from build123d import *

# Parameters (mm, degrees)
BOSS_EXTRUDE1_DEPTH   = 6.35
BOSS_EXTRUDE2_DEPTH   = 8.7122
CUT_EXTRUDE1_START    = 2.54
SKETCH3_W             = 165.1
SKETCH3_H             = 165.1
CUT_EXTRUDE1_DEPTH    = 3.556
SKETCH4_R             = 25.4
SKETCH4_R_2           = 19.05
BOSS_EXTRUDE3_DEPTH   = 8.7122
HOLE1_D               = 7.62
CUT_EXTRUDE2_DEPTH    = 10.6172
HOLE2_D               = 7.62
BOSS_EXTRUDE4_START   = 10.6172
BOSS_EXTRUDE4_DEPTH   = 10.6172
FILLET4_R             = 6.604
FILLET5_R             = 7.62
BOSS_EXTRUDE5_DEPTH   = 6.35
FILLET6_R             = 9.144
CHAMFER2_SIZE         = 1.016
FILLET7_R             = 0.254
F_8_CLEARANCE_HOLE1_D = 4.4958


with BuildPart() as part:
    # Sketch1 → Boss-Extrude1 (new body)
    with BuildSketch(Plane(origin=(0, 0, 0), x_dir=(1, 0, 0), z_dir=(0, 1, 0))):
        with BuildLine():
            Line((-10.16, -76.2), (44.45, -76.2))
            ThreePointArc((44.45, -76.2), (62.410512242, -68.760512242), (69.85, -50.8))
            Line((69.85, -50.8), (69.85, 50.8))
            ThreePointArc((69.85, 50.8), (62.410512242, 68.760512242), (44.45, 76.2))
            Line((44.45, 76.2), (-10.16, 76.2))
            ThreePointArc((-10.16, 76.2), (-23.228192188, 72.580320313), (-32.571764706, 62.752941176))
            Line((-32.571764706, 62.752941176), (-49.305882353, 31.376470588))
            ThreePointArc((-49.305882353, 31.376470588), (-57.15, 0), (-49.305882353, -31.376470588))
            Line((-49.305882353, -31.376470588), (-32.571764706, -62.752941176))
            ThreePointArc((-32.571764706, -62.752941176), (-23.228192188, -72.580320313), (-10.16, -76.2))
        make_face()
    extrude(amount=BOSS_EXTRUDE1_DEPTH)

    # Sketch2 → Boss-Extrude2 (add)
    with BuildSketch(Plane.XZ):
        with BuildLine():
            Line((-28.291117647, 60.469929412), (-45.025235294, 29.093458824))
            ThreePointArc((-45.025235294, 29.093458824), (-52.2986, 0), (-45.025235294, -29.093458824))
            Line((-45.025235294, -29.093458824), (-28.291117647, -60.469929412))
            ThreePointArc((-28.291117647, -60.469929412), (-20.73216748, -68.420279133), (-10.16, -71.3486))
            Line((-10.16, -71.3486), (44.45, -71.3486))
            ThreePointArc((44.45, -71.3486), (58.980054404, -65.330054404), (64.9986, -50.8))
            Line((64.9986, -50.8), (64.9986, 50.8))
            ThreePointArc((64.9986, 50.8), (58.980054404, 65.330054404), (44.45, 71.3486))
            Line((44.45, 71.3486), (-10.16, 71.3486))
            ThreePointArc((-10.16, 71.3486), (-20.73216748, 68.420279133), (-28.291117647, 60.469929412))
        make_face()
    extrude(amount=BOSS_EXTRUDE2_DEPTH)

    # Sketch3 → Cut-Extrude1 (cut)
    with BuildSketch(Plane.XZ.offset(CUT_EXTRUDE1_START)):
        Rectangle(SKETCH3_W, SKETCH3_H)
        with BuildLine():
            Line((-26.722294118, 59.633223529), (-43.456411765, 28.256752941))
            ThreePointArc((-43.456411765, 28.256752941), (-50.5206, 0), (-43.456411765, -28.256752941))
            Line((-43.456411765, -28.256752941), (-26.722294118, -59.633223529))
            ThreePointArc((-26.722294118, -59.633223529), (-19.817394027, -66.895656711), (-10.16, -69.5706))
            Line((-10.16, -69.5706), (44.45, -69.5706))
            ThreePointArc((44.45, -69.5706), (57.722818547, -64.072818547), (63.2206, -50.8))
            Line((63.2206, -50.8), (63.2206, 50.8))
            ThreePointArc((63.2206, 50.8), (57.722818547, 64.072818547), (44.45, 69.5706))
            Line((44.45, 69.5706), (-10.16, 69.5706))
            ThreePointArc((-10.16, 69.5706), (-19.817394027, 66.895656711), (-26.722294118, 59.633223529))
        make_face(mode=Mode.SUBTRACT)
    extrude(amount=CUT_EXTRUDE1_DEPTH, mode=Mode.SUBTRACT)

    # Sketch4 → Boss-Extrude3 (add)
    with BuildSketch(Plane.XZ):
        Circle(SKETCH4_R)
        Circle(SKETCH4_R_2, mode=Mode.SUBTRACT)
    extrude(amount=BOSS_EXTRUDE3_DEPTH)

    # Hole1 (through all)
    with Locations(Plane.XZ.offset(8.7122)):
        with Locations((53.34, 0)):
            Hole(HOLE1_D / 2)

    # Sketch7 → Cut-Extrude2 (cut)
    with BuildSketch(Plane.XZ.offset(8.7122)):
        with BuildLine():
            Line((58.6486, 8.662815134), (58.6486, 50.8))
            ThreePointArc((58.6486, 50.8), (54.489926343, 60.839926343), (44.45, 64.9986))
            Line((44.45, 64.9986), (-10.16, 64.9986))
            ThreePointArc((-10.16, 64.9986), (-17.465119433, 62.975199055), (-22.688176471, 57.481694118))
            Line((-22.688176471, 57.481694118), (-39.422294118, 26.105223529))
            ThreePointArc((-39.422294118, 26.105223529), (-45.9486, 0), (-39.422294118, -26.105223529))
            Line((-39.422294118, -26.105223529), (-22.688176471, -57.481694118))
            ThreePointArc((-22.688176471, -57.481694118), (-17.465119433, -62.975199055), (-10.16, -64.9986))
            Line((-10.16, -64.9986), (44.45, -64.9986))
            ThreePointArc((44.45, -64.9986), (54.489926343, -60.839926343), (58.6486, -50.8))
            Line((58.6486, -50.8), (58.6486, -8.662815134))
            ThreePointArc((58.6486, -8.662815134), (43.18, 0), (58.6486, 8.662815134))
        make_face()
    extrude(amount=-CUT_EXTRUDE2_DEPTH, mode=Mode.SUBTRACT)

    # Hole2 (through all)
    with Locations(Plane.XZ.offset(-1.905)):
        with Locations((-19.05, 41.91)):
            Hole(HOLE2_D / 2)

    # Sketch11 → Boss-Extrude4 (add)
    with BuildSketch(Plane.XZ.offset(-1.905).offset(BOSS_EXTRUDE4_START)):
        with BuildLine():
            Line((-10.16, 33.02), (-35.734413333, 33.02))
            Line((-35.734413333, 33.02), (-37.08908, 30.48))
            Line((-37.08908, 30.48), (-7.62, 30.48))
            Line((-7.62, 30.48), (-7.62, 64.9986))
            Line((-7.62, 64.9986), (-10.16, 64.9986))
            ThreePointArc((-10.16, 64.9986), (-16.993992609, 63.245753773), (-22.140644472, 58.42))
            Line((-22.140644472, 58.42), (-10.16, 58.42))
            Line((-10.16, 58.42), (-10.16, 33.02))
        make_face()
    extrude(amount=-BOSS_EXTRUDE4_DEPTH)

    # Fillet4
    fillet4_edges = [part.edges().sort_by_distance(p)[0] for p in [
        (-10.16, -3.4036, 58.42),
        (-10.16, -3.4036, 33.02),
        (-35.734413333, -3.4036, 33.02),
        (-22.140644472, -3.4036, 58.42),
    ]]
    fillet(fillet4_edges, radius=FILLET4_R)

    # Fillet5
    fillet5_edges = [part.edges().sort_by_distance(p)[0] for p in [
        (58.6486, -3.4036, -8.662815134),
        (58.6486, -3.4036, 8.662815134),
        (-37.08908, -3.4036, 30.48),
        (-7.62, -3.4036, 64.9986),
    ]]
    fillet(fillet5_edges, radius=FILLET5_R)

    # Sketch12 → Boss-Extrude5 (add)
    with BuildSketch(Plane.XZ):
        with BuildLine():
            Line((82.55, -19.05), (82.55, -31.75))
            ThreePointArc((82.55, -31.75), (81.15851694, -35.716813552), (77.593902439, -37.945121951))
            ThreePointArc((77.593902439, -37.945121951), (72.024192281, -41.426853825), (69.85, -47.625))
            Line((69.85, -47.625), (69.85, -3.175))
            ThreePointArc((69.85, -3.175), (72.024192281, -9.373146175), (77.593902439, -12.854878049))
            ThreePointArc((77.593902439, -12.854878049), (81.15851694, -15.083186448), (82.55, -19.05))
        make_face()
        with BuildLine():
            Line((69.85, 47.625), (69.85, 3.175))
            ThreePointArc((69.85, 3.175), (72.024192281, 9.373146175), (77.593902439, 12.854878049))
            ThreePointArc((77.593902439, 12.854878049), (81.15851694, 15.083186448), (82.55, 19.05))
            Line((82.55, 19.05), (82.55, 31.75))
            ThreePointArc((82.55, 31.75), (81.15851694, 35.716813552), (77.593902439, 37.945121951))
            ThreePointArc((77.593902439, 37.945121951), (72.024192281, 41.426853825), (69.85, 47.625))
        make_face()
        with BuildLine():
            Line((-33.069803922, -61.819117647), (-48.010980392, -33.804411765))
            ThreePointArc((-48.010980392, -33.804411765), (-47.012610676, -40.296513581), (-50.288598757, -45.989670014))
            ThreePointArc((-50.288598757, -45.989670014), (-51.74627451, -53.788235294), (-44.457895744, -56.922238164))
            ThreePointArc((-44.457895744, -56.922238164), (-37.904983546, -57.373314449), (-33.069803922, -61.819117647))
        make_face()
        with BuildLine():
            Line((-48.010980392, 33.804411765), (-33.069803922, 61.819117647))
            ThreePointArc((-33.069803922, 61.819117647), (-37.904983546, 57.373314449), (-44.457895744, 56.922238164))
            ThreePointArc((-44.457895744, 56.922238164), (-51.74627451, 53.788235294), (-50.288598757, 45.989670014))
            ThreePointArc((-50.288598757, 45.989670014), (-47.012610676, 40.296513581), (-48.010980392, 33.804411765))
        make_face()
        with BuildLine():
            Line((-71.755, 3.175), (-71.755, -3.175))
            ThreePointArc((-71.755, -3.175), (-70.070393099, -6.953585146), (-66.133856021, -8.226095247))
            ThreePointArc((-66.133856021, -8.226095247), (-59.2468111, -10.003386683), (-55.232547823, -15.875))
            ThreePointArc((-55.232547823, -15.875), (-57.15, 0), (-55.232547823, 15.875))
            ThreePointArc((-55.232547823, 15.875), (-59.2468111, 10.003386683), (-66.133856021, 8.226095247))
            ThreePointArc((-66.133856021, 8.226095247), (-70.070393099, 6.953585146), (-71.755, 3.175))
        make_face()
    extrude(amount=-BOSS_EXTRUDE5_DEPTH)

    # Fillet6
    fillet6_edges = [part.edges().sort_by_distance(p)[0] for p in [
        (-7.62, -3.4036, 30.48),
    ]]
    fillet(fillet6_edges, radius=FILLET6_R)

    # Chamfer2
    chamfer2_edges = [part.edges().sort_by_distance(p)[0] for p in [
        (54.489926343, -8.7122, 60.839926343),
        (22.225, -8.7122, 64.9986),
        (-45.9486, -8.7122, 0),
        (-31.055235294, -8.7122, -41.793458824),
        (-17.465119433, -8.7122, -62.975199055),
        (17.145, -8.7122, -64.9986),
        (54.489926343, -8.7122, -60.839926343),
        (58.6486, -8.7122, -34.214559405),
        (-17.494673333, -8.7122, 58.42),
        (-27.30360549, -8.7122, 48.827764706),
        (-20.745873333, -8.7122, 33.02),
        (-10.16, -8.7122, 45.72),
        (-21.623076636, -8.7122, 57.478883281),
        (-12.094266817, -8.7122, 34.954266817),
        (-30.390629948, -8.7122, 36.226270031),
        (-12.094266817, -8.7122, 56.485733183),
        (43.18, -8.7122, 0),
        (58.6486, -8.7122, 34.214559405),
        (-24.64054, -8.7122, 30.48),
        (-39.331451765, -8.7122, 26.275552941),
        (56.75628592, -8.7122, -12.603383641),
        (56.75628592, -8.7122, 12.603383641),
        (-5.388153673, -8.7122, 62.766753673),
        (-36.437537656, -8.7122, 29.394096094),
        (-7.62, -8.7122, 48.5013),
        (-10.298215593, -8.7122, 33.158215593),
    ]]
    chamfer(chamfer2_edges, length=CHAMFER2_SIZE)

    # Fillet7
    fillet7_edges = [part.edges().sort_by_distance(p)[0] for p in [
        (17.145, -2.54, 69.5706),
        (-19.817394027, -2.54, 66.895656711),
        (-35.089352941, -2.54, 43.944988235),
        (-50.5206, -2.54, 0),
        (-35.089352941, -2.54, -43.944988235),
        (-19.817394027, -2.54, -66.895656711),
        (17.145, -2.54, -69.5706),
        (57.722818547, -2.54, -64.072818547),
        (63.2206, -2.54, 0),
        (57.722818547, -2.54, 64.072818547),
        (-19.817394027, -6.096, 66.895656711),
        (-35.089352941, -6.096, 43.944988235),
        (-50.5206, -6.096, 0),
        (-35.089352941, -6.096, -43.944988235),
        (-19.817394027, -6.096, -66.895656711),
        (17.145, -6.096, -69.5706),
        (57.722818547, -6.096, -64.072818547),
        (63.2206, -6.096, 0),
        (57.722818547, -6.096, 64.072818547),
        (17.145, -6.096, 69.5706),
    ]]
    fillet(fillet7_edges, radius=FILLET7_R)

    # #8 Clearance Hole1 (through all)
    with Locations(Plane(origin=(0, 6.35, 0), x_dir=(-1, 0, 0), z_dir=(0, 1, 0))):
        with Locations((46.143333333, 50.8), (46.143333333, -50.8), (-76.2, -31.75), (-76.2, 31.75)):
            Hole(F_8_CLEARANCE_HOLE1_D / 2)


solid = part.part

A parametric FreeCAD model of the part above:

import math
import FreeCAD as App
import Part
import Sketcher

V = App.Vector
Q = App.Units.Quantity


def edges_at(feature, points):
    """Names of the edges that pass closest to the given points."""
    edges = feature.Shape.Edges
    near = lambda p: min(range(len(edges)), key=lambda i: edges[i].distToShape(Part.Vertex(*p))[0])
    return sorted({f"Edge{near(p) + 1}" for p in points})

doc = App.newDocument("Part")
body = doc.addObject("PartDesign::Body", "Body")

# Sketch on XZ plane
sketch1 = body.newObject("Sketcher::SketchObject", "Sketch")
sketch1.AttachmentSupport = (doc.getObject("XZ_Plane"), [""])
sketch1.MapMode = "FlatFace"
sketch1.addGeometry(Part.LineSegment(V(-10.16, 76.2, 0), V(44.45, 76.2, 0)), False)
sketch1.addGeometry(Part.ArcOfCircle(Part.Circle(V(44.45, 50.8, 0), V(0, 0, 1), 25.4), math.radians(0), math.radians(90)), False)
sketch1.addGeometry(Part.LineSegment(V(69.85, 50.8, 0), V(69.85, -50.8, 0)), False)
sketch1.addGeometry(Part.ArcOfCircle(Part.Circle(V(44.45, -50.8, 0), V(0, 0, 1), 25.4), math.radians(-90), math.radians(0)), False)
sketch1.addGeometry(Part.LineSegment(V(44.45, -76.2, 0), V(-10.16, -76.2, 0)), False)
sketch1.addGeometry(Part.ArcOfCircle(Part.Circle(V(-10.16, -50.8, 0), V(0, 0, 1), 25.4), math.radians(-151.927513), math.radians(-90)), False)
sketch1.addGeometry(Part.LineSegment(V(-32.571765, -62.752941, 0), V(-49.305882, -31.376471, 0)), False)
sketch1.addGeometry(Part.ArcOfCircle(Part.Circle(V(9.525, 0, 0), V(0, 0, 1), 66.675), math.radians(151.927513), math.radians(208.072487)), False)
sketch1.addGeometry(Part.LineSegment(V(-49.305882, 31.376471, 0), V(-32.571765, 62.752941, 0)), False)
sketch1.addGeometry(Part.ArcOfCircle(Part.Circle(V(-10.16, 50.8, 0), V(0, 0, 1), 25.4), math.radians(90), math.radians(151.927513)), False)
sketch1.addConstraint(Sketcher.Constraint("Tangent", 0, 2, 1, 2))
sketch1.addConstraint(Sketcher.Constraint("Tangent", 1, 1, 2, 1))
sketch1.addConstraint(Sketcher.Constraint("Tangent", 2, 2, 3, 2))
sketch1.addConstraint(Sketcher.Constraint("Tangent", 3, 1, 4, 1))
sketch1.addConstraint(Sketcher.Constraint("Tangent", 4, 2, 5, 2))
sketch1.addConstraint(Sketcher.Constraint("Tangent", 5, 1, 6, 1))
sketch1.addConstraint(Sketcher.Constraint("Tangent", 6, 2, 7, 2))
sketch1.addConstraint(Sketcher.Constraint("Tangent", 7, 1, 8, 1))
sketch1.addConstraint(Sketcher.Constraint("Tangent", 8, 2, 9, 2))
sketch1.addConstraint(Sketcher.Constraint("Tangent", 9, 1, 0, 1))
sketch1.addConstraint(Sketcher.Constraint("Horizontal", 0))
sketch1.addConstraint(Sketcher.Constraint("Vertical", 2))
sketch1.addConstraint(Sketcher.Constraint("Horizontal", 4))
sketch1.addConstraint(Sketcher.Constraint("Equal", 1, 3))
sketch1.addConstraint(Sketcher.Constraint("Equal", 3, 5))
sketch1.addConstraint(Sketcher.Constraint("Equal", 5, 9))
sketch1.addConstraint(Sketcher.Constraint("Symmetric", 5, 3, 9, 3, -1))
sketch1.addConstraint(Sketcher.Constraint("PointOnObject", 7, 3, -1))
sketch1.addConstraint(Sketcher.Constraint("Radius", 1, Q("1 in")))
sketch1.addConstraint(Sketcher.Constraint("DistanceY", 2, 2, 2, 1, Q("4 in")))
sketch1.addConstraint(Sketcher.Constraint("Radius", 7, Q("2.625 in")))
sketch1.addConstraint(Sketcher.Constraint("Distance", 6, Q("1.4 in")))
sketch1.addConstraint(Sketcher.Constraint("DistanceX", 0, 1, 0, 2, Q("2.15 in")))
sketch1.addConstraint(Sketcher.Constraint("DistanceX", 5, 3, -1, 1, Q("0.4 in")))
pad1 = body.newObject("PartDesign::Pad", "Pad")
pad1.Profile = sketch1
pad1.Length = Q("0.25 in")
pad1.Reversed = True

# Sketch on XZ plane
sketch2 = body.newObject("Sketcher::SketchObject", "Sketch001")
sketch2.AttachmentSupport = (doc.getObject("XZ_Plane"), [""])
sketch2.MapMode = "FlatFace"
sketch2.addGeometry(Part.LineSegment(V(-28.291118, 60.469929, 0), V(-45.025235, 29.093459, 0)), False)
sketch2.addGeometry(Part.ArcOfCircle(Part.Circle(V(9.525, 0, 0), V(0, 0, 1), 61.8236), math.radians(151.927513), math.radians(208.072487)), False)
sketch2.addGeometry(Part.LineSegment(V(-45.025235, -29.093459, 0), V(-28.291118, -60.469929, 0)), False)
sketch2.addGeometry(Part.ArcOfCircle(Part.Circle(V(-10.16, -50.8, 0), V(0, 0, 1), 20.5486), math.radians(-151.927513), math.radians(-90)), False)
sketch2.addGeometry(Part.LineSegment(V(-10.16, -71.3486, 0), V(44.45, -71.3486, 0)), False)
sketch2.addGeometry(Part.ArcOfCircle(Part.Circle(V(44.45, -50.8, 0), V(0, 0, 1), 20.5486), math.radians(-90), math.radians(0)), False)
sketch2.addGeometry(Part.LineSegment(V(64.9986, -50.8, 0), V(64.9986, 50.8, 0)), False)
sketch2.addGeometry(Part.ArcOfCircle(Part.Circle(V(44.45, 50.8, 0), V(0, 0, 1), 20.5486), math.radians(0), math.radians(90)), False)
sketch2.addGeometry(Part.LineSegment(V(44.45, 71.3486, 0), V(-10.16, 71.3486, 0)), False)
sketch2.addGeometry(Part.ArcOfCircle(Part.Circle(V(-10.16, 50.8, 0), V(0, 0, 1), 20.5486), math.radians(90), math.radians(151.927513)), False)
sketch2.addConstraint(Sketcher.Constraint("Tangent", 0, 2, 1, 1))
sketch2.addConstraint(Sketcher.Constraint("Tangent", 1, 2, 2, 1))
sketch2.addConstraint(Sketcher.Constraint("Tangent", 2, 2, 3, 1))
sketch2.addConstraint(Sketcher.Constraint("Tangent", 3, 2, 4, 1))
sketch2.addConstraint(Sketcher.Constraint("Tangent", 4, 2, 5, 1))
sketch2.addConstraint(Sketcher.Constraint("Tangent", 5, 2, 6, 1))
sketch2.addConstraint(Sketcher.Constraint("Tangent", 6, 2, 7, 1))
sketch2.addConstraint(Sketcher.Constraint("Tangent", 7, 2, 8, 1))
sketch2.addConstraint(Sketcher.Constraint("Tangent", 8, 2, 9, 1))
sketch2.addConstraint(Sketcher.Constraint("Tangent", 9, 2, 0, 1))
sketch2.addConstraint(Sketcher.Constraint("Horizontal", 4))
sketch2.addConstraint(Sketcher.Constraint("Vertical", 6))
sketch2.addConstraint(Sketcher.Constraint("Horizontal", 8))
sketch2.addConstraint(Sketcher.Constraint("Equal", 3, 5))
sketch2.addConstraint(Sketcher.Constraint("Equal", 5, 7))
sketch2.addConstraint(Sketcher.Constraint("Equal", 7, 9))
sketch2.addConstraint(Sketcher.Constraint("Symmetric", 3, 3, 9, 3, -1))
sketch2.addConstraint(Sketcher.Constraint("PointOnObject", 1, 3, -1))
sketch2.addConstraint(Sketcher.Constraint("DistanceY", 6, 1, 6, 2, Q("4 in")))
sketch2.addConstraint(Sketcher.Constraint("Radius", 1, Q("2.434 in")))
sketch2.addConstraint(Sketcher.Constraint("Radius", 3, Q("0.809 in")))
sketch2.addConstraint(Sketcher.Constraint("Distance", 0, Q("1.4 in")))
sketch2.addConstraint(Sketcher.Constraint("DistanceX", 4, 1, 4, 2, Q("2.15 in")))
sketch2.addConstraint(Sketcher.Constraint("DistanceX", 3, 3, -1, 1, Q("0.4 in")))
pad2 = body.newObject("PartDesign::Pad", "Pad001")
pad2.Profile = sketch2
pad2.Length = Q("0.343 in")

# Sketch on XZ plane
sketch3 = body.newObject("Sketcher::SketchObject", "Sketch002")
sketch3.AttachmentSupport = (doc.getObject("XZ_Plane"), [""])
sketch3.MapMode = "FlatFace"
sketch3.AttachmentOffset = App.Placement(V(0, 0, 0.1 * 25.4), App.Rotation())
sketch3.addGeometry(Part.LineSegment(V(-82.55, 82.55, 0), V(-82.55, -82.55, 0)), False)
sketch3.addGeometry(Part.LineSegment(V(-82.55, -82.55, 0), V(82.55, -82.55, 0)), False)
sketch3.addGeometry(Part.LineSegment(V(82.55, -82.55, 0), V(82.55, 82.55, 0)), False)
sketch3.addGeometry(Part.LineSegment(V(82.55, 82.55, 0), V(-82.55, 82.55, 0)), False)
sketch3.addGeometry(Part.LineSegment(V(-43.456412, 28.256753, 0), V(-26.722294, 59.633224, 0)), False)
sketch3.addGeometry(Part.ArcOfCircle(Part.Circle(V(-10.16, 50.8, 0), V(0, 0, 1), 18.7706), math.radians(90), math.radians(151.927513)), False)
sketch3.addGeometry(Part.LineSegment(V(-10.16, 69.5706, 0), V(44.45, 69.5706, 0)), False)
sketch3.addGeometry(Part.ArcOfCircle(Part.Circle(V(44.45, 50.8, 0), V(0, 0, 1), 18.7706), math.radians(0), math.radians(90)), False)
sketch3.addGeometry(Part.LineSegment(V(63.2206, 50.8, 0), V(63.2206, -50.8, 0)), False)
sketch3.addGeometry(Part.ArcOfCircle(Part.Circle(V(44.45, -50.8, 0), V(0, 0, 1), 18.7706), math.radians(-90), math.radians(0)), False)
sketch3.addGeometry(Part.LineSegment(V(44.45, -69.5706, 0), V(-10.16, -69.5706, 0)), False)
sketch3.addGeometry(Part.ArcOfCircle(Part.Circle(V(-10.16, -50.8, 0), V(0, 0, 1), 18.7706), math.radians(-151.927513), math.radians(-90)), False)
sketch3.addGeometry(Part.LineSegment(V(-26.722294, -59.633224, 0), V(-43.456412, -28.256753, 0)), False)
sketch3.addGeometry(Part.ArcOfCircle(Part.Circle(V(9.525, 0, 0), V(0, 0, 1), 60.0456), math.radians(151.927513), math.radians(208.072487)), False)
sketch3.addConstraint(Sketcher.Constraint("Coincident", 0, 2, 1, 1))
sketch3.addConstraint(Sketcher.Constraint("Coincident", 1, 2, 2, 1))
sketch3.addConstraint(Sketcher.Constraint("Coincident", 2, 2, 3, 1))
sketch3.addConstraint(Sketcher.Constraint("Coincident", 3, 2, 0, 1))
sketch3.addConstraint(Sketcher.Constraint("Tangent", 4, 2, 5, 2))
sketch3.addConstraint(Sketcher.Constraint("Tangent", 5, 1, 6, 1))
sketch3.addConstraint(Sketcher.Constraint("Tangent", 6, 2, 7, 2))
sketch3.addConstraint(Sketcher.Constraint("Tangent", 7, 1, 8, 1))
sketch3.addConstraint(Sketcher.Constraint("Tangent", 8, 2, 9, 2))
sketch3.addConstraint(Sketcher.Constraint("Tangent", 9, 1, 10, 1))
sketch3.addConstraint(Sketcher.Constraint("Tangent", 10, 2, 11, 2))
sketch3.addConstraint(Sketcher.Constraint("Tangent", 11, 1, 12, 1))
sketch3.addConstraint(Sketcher.Constraint("Tangent", 12, 2, 13, 2))
sketch3.addConstraint(Sketcher.Constraint("Tangent", 13, 1, 4, 1))
sketch3.addConstraint(Sketcher.Constraint("Vertical", 0))
sketch3.addConstraint(Sketcher.Constraint("Horizontal", 1))
sketch3.addConstraint(Sketcher.Constraint("Vertical", 2))
sketch3.addConstraint(Sketcher.Constraint("Horizontal", 3))
sketch3.addConstraint(Sketcher.Constraint("Horizontal", 6))
sketch3.addConstraint(Sketcher.Constraint("Vertical", 8))
sketch3.addConstraint(Sketcher.Constraint("Horizontal", 10))
sketch3.addConstraint(Sketcher.Constraint("Equal", 5, 7))
sketch3.addConstraint(Sketcher.Constraint("Equal", 7, 9))
sketch3.addConstraint(Sketcher.Constraint("Equal", 9, 11))
sketch3.addConstraint(Sketcher.Constraint("Symmetric", 0, 2, 2, 2, -1, 1))
sketch3.addConstraint(Sketcher.Constraint("Symmetric", 5, 3, 11, 3, -1))
sketch3.addConstraint(Sketcher.Constraint("PointOnObject", 13, 3, -1))
sketch3.addConstraint(Sketcher.Constraint("Equal", 3, 0))
sketch3.addConstraint(Sketcher.Constraint("DistanceY", 8, 2, 8, 1, Q("4 in")))
sketch3.addConstraint(Sketcher.Constraint("DistanceX", 1, 1, 1, 2, Q("6.5 in")))
sketch3.addConstraint(Sketcher.Constraint("Radius", 5, Q("0.739 in")))
sketch3.addConstraint(Sketcher.Constraint("Radius", 13, Q("2.364 in")))
sketch3.addConstraint(Sketcher.Constraint("DistanceX", 0, 2, 9, 3, Q("5 in")))
sketch3.addConstraint(Sketcher.Constraint("Distance", 4, Q("1.4 in")))
sketch3.addConstraint(Sketcher.Constraint("DistanceX", 6, 1, 6, 2, Q("2.15 in")))
pocket1 = body.newObject("PartDesign::Pocket", "Pocket")
pocket1.Profile = sketch3
pocket1.Length = Q("0.14 in")
pocket1.Reversed = True

# Sketch on XZ plane
sketch4 = body.newObject("Sketcher::SketchObject", "Sketch003")
sketch4.AttachmentSupport = (doc.getObject("XZ_Plane"), [""])
sketch4.MapMode = "FlatFace"
sketch4.addGeometry(Part.Circle(V(0, 0, 0), V(0, 0, 1), 25.4), False)
sketch4.addGeometry(Part.Circle(V(0, 0, 0), V(0, 0, 1), 19.05), False)
sketch4.addConstraint(Sketcher.Constraint("Coincident", 0, 3, -1, 1))
sketch4.addConstraint(Sketcher.Constraint("Coincident", 1, 3, -1, 1))
sketch4.addConstraint(Sketcher.Constraint("Diameter", 0, Q("2 in")))
sketch4.addConstraint(Sketcher.Constraint("Diameter", 1, Q("1.5 in")))
pad3 = body.newObject("PartDesign::Pad", "Pad002")
pad3.Profile = sketch4
pad3.Length = Q("0.343 in")

# Sketch on XZ plane
sketch5 = body.newObject("Sketcher::SketchObject", "Sketch004")
sketch5.AttachmentSupport = (doc.getObject("XZ_Plane"), [""])
sketch5.MapMode = "FlatFace"
sketch5.AttachmentOffset = App.Placement(V(0, 0, 0.343 * 25.4), App.Rotation())
sketch5.addGeometry(Part.Circle(V(53.34, 0, 0), V(0, 0, 1), 3.81), False)
sketch5.addConstraint(Sketcher.Constraint("PointOnObject", 0, 3, -1))
sketch5.addConstraint(Sketcher.Constraint("Diameter", 0, Q("0.3 in")))
sketch5.addConstraint(Sketcher.Constraint("DistanceX", -1, 1, 0, 3, Q("2.1 in")))
doc.recompute()
hole = body.newObject("PartDesign::Hole", "Hole")
hole.Profile = sketch5
hole.ThreadType = "None"
hole.Diameter = Q("0.3 in")
hole.DepthType = "ThroughAll"

# Sketch on XZ plane
sketch6 = body.newObject("Sketcher::SketchObject", "Sketch005")
sketch6.AttachmentSupport = (doc.getObject("XZ_Plane"), [""])
sketch6.MapMode = "FlatFace"
sketch6.AttachmentOffset = App.Placement(V(0, 0, 0.343 * 25.4), App.Rotation())
sketch6.addGeometry(Part.LineSegment(V(58.6486, 8.662815, 0), V(58.6486, 50.8, 0)), False)
sketch6.addGeometry(Part.ArcOfCircle(Part.Circle(V(44.45, 50.8, 0), V(0, 0, 1), 14.1986), math.radians(0), math.radians(90)), False)
sketch6.addGeometry(Part.LineSegment(V(44.45, 64.9986, 0), V(-10.16, 64.9986, 0)), False)
sketch6.addGeometry(Part.ArcOfCircle(Part.Circle(V(-10.16, 50.8, 0), V(0, 0, 1), 14.1986), math.radians(90), math.radians(151.927513)), False)
sketch6.addGeometry(Part.LineSegment(V(-22.688176, 57.481694, 0), V(-39.422294, 26.105224, 0)), False)
sketch6.addGeometry(Part.ArcOfCircle(Part.Circle(V(9.525, 0, 0), V(0, 0, 1), 55.4736), math.radians(151.927513), math.radians(208.072487)), False)
sketch6.addGeometry(Part.LineSegment(V(-39.422294, -26.105224, 0), V(-22.688176, -57.481694, 0)), False)
sketch6.addGeometry(Part.ArcOfCircle(Part.Circle(V(-10.16, -50.8, 0), V(0, 0, 1), 14.1986), math.radians(-151.927513), math.radians(-90)), False)
sketch6.addGeometry(Part.LineSegment(V(-10.16, -64.9986, 0), V(44.45, -64.9986, 0)), False)
sketch6.addGeometry(Part.ArcOfCircle(Part.Circle(V(44.45, -50.8, 0), V(0, 0, 1), 14.1986), math.radians(-90), math.radians(0)), False)
sketch6.addGeometry(Part.LineSegment(V(58.6486, -50.8, 0), V(58.6486, -8.662815, 0)), False)
sketch6.addGeometry(Part.ArcOfCircle(Part.Circle(V(53.34, 0, 0), V(0, 0, 1), 10.16), math.radians(58.499904), math.radians(301.500096)), False)
sketch6.addConstraint(Sketcher.Constraint("Tangent", 0, 2, 1, 1))
sketch6.addConstraint(Sketcher.Constraint("Tangent", 1, 2, 2, 1))
sketch6.addConstraint(Sketcher.Constraint("Tangent", 2, 2, 3, 1))
sketch6.addConstraint(Sketcher.Constraint("Tangent", 3, 2, 4, 1))
sketch6.addConstraint(Sketcher.Constraint("Tangent", 4, 2, 5, 1))
sketch6.addConstraint(Sketcher.Constraint("Tangent", 5, 2, 6, 1))
sketch6.addConstraint(Sketcher.Constraint("Tangent", 6, 2, 7, 1))
sketch6.addConstraint(Sketcher.Constraint("Tangent", 7, 2, 8, 1))
sketch6.addConstraint(Sketcher.Constraint("Tangent", 8, 2, 9, 1))
sketch6.addConstraint(Sketcher.Constraint("Tangent", 9, 2, 10, 1))
sketch6.addConstraint(Sketcher.Constraint("Coincident", 10, 2, 11, 2))
sketch6.addConstraint(Sketcher.Constraint("Coincident", 11, 1, 0, 1))
sketch6.addConstraint(Sketcher.Constraint("Vertical", 0))
sketch6.addConstraint(Sketcher.Constraint("Horizontal", 2))
sketch6.addConstraint(Sketcher.Constraint("Horizontal", 8))
sketch6.addConstraint(Sketcher.Constraint("Vertical", 10))
sketch6.addConstraint(Sketcher.Constraint("Equal", 1, 3))
sketch6.addConstraint(Sketcher.Constraint("Equal", 3, 7))
sketch6.addConstraint(Sketcher.Constraint("Equal", 7, 9))
sketch6.addConstraint(Sketcher.Constraint("Symmetric", 3, 3, 7, 3, -1))
sketch6.addConstraint(Sketcher.Constraint("Symmetric", 10, 2, 11, 1, -1))
sketch6.addConstraint(Sketcher.Constraint("PointOnObject", 5, 3, -1))
sketch6.addConstraint(Sketcher.Constraint("Radius", 11, Q("0.4 in")))
sketch6.addConstraint(Sketcher.Constraint("DistanceY", -1, 1, 1, 3, Q("2 in")))
sketch6.addConstraint(Sketcher.Constraint("Radius", 1, Q("0.559 in")))
sketch6.addConstraint(Sketcher.Constraint("Radius", 5, Q("2.184 in")))
sketch6.addConstraint(Sketcher.Constraint("Distance", 4, Q("1.4 in")))
sketch6.addConstraint(Sketcher.Constraint("DistanceX", 2, 2, 2, 1, Q("2.15 in")))
sketch6.addConstraint(Sketcher.Constraint("DistanceX", 3, 3, -1, 1, Q("0.4 in")))
sketch6.addConstraint(Sketcher.Constraint("DistanceX", -1, 1, 11, 3, Q("2.1 in")))
pocket2 = body.newObject("PartDesign::Pocket", "Pocket001")
pocket2.Profile = sketch6
pocket2.Length = Q("0.418 in")

# Sketch on XZ plane
sketch7 = body.newObject("Sketcher::SketchObject", "Sketch006")
sketch7.AttachmentSupport = (doc.getObject("XZ_Plane"), [""])
sketch7.MapMode = "FlatFace"
sketch7.AttachmentOffset = App.Placement(V(0, 0, -0.075 * 25.4), App.Rotation())
sketch7.addGeometry(Part.Circle(V(-19.05, 41.91, 0), V(0, 0, 1), 3.81), False)
sketch7.addConstraint(Sketcher.Constraint("Diameter", 0, Q("0.3 in")))
sketch7.addConstraint(Sketcher.Constraint("DistanceX", 0, 3, -1, 1, Q("0.75 in")))
sketch7.addConstraint(Sketcher.Constraint("DistanceY", -1, 1, 0, 3, Q("1.65 in")))
doc.recompute()
hole2 = body.newObject("PartDesign::Hole", "Hole001")
hole2.Profile = sketch7
hole2.ThreadType = "None"
hole2.Diameter = Q("0.3 in")
hole2.DepthType = "ThroughAll"

# Sketch on XZ plane
sketch8 = body.newObject("Sketcher::SketchObject", "Sketch007")
sketch8.AttachmentSupport = (doc.getObject("XZ_Plane"), [""])
sketch8.MapMode = "FlatFace"
sketch8.AttachmentOffset = App.Placement(V(0, 0, 0.343 * 25.4), App.Rotation())
sketch8.addGeometry(Part.LineSegment(V(-10.16, 33.02, 0), V(-35.734413, 33.02, 0)), False)
sketch8.addGeometry(Part.LineSegment(V(-35.734413, 33.02, 0), V(-37.08908, 30.48, 0)), False)
sketch8.addGeometry(Part.LineSegment(V(-37.08908, 30.48, 0), V(-7.62, 30.48, 0)), False)
sketch8.addGeometry(Part.LineSegment(V(-7.62, 30.48, 0), V(-7.62, 64.9986, 0)), False)
sketch8.addGeometry(Part.LineSegment(V(-7.62, 64.9986, 0), V(-10.16, 64.9986, 0)), False)
sketch8.addGeometry(Part.ArcOfCircle(Part.Circle(V(-10.16, 50.8, 0), V(0, 0, 1), 14.1986), math.radians(90), math.radians(147.542584)), False)
sketch8.addGeometry(Part.LineSegment(V(-22.140644, 58.42, 0), V(-10.16, 58.42, 0)), False)
sketch8.addGeometry(Part.LineSegment(V(-10.16, 58.42, 0), V(-10.16, 33.02, 0)), False)
sketch8.addConstraint(Sketcher.Constraint("Coincident", 0, 2, 1, 1))
sketch8.addConstraint(Sketcher.Constraint("Coincident", 1, 2, 2, 1))
sketch8.addConstraint(Sketcher.Constraint("Coincident", 2, 2, 3, 1))
sketch8.addConstraint(Sketcher.Constraint("Coincident", 3, 2, 4, 1))
sketch8.addConstraint(Sketcher.Constraint("Tangent", 4, 2, 5, 1))
sketch8.addConstraint(Sketcher.Constraint("Coincident", 5, 2, 6, 1))
sketch8.addConstraint(Sketcher.Constraint("Coincident", 6, 2, 7, 1))
sketch8.addConstraint(Sketcher.Constraint("Coincident", 7, 2, 0, 1))
sketch8.addConstraint(Sketcher.Constraint("Horizontal", 0))
sketch8.addConstraint(Sketcher.Constraint("Horizontal", 2))
sketch8.addConstraint(Sketcher.Constraint("Vertical", 3))
sketch8.addConstraint(Sketcher.Constraint("Horizontal", 4))
sketch8.addConstraint(Sketcher.Constraint("Horizontal", 6))
sketch8.addConstraint(Sketcher.Constraint("Vertical", 7))
sketch8.addConstraint(Sketcher.Constraint("Vertical", 4, 2, 6, 2))
sketch8.addConstraint(Sketcher.Constraint("DistanceY", 7, 2, 7, 1, Q("1 in")))
sketch8.addConstraint(Sketcher.Constraint("DistanceX", 4, 2, 4, 1, Q("0.1 in")))
sketch8.addConstraint(Sketcher.Constraint("DistanceY", -1, 1, 5, 3, Q("2 in")))
sketch8.addConstraint(Sketcher.Constraint("Radius", 5, Q("0.559 in")))
sketch8.addConstraint(Sketcher.Constraint("DistanceX", 5, 3, -1, 1, Q("0.4 in")))
sketch8.addConstraint(Sketcher.Constraint("DistanceY", -1, 1, 0, 2, Q("1.3 in")))
sketch8.addConstraint(Sketcher.Constraint("DistanceY", -1, 1, 1, 2, Q("1.2 in")))
sketch8.addConstraint(Sketcher.Constraint("DistanceX", 2, 1, 2, 2, Q("1.1602 in")))
sketch8.addConstraint(Sketcher.Constraint("DistanceX", 0, 2, 0, 1, Q("25.574413 mm")))
pad4 = body.newObject("PartDesign::Pad", "Pad003")
pad4.Profile = sketch8
pad4.Length = Q("0.418 in")
pad4.Reversed = True
doc.recompute()

fillet = body.newObject("PartDesign::Fillet", "Fillet")
fillet.Base = (pad4, edges_at(pad4, [
    (-10.16, -3.404, 58.42),
    (-10.16, -3.404, 33.02),
    (-35.734, -3.404, 33.02),
    (-22.141, -3.404, 58.42),
]))
fillet.Radius = Q("0.26 in")
doc.recompute()

fillet2 = body.newObject("PartDesign::Fillet", "Fillet001")
fillet2.Base = (fillet, edges_at(fillet, [
    (58.649, -3.404, -8.663),
    (58.649, -3.404, 8.663),
    (-37.089, -3.404, 30.48),
    (-7.62, -3.404, 64.999),
]))
fillet2.Radius = Q("0.3 in")

# Sketch on XZ plane
sketch9 = body.newObject("Sketcher::SketchObject", "Sketch008")
sketch9.AttachmentSupport = (doc.getObject("XZ_Plane"), [""])
sketch9.MapMode = "FlatFace"
sketch9.addGeometry(Part.LineSegment(V(82.55, -31.75, 0), V(82.55, -19.05, 0)), False)
sketch9.addGeometry(Part.ArcOfCircle(Part.Circle(V(76.2, -19.05, 0), V(0, 0, 1), 6.35), math.radians(0), math.radians(77.319617)), False)
sketch9.addGeometry(Part.ArcOfCircle(Part.Circle(V(79.771875, -3.175, 0), V(0, 0, 1), 9.921875), math.radians(180), math.radians(257.319617)), False)
sketch9.addGeometry(Part.LineSegment(V(69.85, -3.175, 0), V(69.85, -47.625, 0)), False)
sketch9.addGeometry(Part.ArcOfCircle(Part.Circle(V(79.771875, -47.625, 0), V(0, 0, 1), 9.921875), math.radians(102.680383), math.radians(180)), False)
sketch9.addGeometry(Part.ArcOfCircle(Part.Circle(V(76.2, -31.75, 0), V(0, 0, 1), 6.35), math.radians(-77.319617), math.radians(0)), False)
sketch9.addGeometry(Part.LineSegment(V(69.85, 47.625, 0), V(69.85, 3.175, 0)), False)
sketch9.addGeometry(Part.ArcOfCircle(Part.Circle(V(79.771875, 3.175, 0), V(0, 0, 1), 9.921875), math.radians(102.680383), math.radians(180)), False)
sketch9.addGeometry(Part.ArcOfCircle(Part.Circle(V(76.2, 19.05, 0), V(0, 0, 1), 6.35), math.radians(-77.319617), math.radians(0)), False)
sketch9.addGeometry(Part.LineSegment(V(82.55, 19.05, 0), V(82.55, 31.75, 0)), False)
sketch9.addGeometry(Part.ArcOfCircle(Part.Circle(V(76.2, 31.75, 0), V(0, 0, 1), 6.35), math.radians(0), math.radians(77.319617)), False)
sketch9.addGeometry(Part.ArcOfCircle(Part.Circle(V(79.771875, 47.625, 0), V(0, 0, 1), 9.921875), math.radians(180), math.radians(257.319617)), False)
sketch9.addGeometry(Part.LineSegment(V(-33.069804, -61.819118, 0), V(-48.01098, -33.804412, 0)), False)
sketch9.addGeometry(Part.ArcOfCircle(Part.Circle(V(-56.765576, -38.473529, 0), V(0, 0, 1), 9.921875), math.radians(-49.24713), math.radians(28.072487)), False)
sketch9.addGeometry(Part.ArcOfCircle(Part.Circle(V(-46.143333, -50.8, 0), V(0, 0, 1), 6.35), math.radians(130.75287), math.radians(285.392103)), False)
sketch9.addGeometry(Part.ArcOfCircle(Part.Circle(V(-41.8244, -66.488235, 0), V(0, 0, 1), 9.921875), math.radians(28.072487), math.radians(105.392103)), False)
sketch9.addGeometry(Part.LineSegment(V(-48.01098, 33.804412, 0), V(-33.069804, 61.819118, 0)), False)
sketch9.addGeometry(Part.ArcOfCircle(Part.Circle(V(-41.8244, 66.488235, 0), V(0, 0, 1), 9.921875), math.radians(-105.392103), math.radians(-28.072487)), False)
sketch9.addGeometry(Part.ArcOfCircle(Part.Circle(V(-46.143333, 50.8, 0), V(0, 0, 1), 6.35), math.radians(74.607897), math.radians(229.24713)), False)
sketch9.addGeometry(Part.ArcOfCircle(Part.Circle(V(-56.765576, 38.473529, 0), V(0, 0, 1), 9.921875), math.radians(-28.072487), math.radians(49.24713)), False)
sketch9.addGeometry(Part.LineSegment(V(-71.755, 3.175, 0), V(-71.755, -3.175, 0)), False)
sketch9.addGeometry(Part.ArcOfCircle(Part.Circle(V(-66.675, -3.175, 0), V(0, 0, 1), 5.08), math.radians(180), math.radians(276.115001)), False)
sketch9.addGeometry(Part.ArcOfCircle(Part.Circle(V(-65.056391, -18.283268, 0), V(0, 0, 1), 10.114724), math.radians(13.774147), math.radians(96.115001)), False)
sketch9.addGeometry(Part.ArcOfCircle(Part.Circle(V(9.525, 0, 0), V(0, 0, 1), 66.675), math.radians(166.225853), math.radians(193.774147)), False)
sketch9.addGeometry(Part.ArcOfCircle(Part.Circle(V(-65.056391, 18.283268, 0), V(0, 0, 1), 10.114724), math.radians(-96.115001), math.radians(-13.774147)), False)
sketch9.addGeometry(Part.ArcOfCircle(Part.Circle(V(-66.675, 3.175, 0), V(0, 0, 1), 5.08), math.radians(83.884999), math.radians(180)), False)
sketch9.addConstraint(Sketcher.Constraint("Tangent", 0, 2, 1, 1))
sketch9.addConstraint(Sketcher.Constraint("Tangent", 1, 2, 2, 2))
sketch9.addConstraint(Sketcher.Constraint("Tangent", 2, 1, 3, 1))
sketch9.addConstraint(Sketcher.Constraint("Tangent", 3, 2, 4, 2))
sketch9.addConstraint(Sketcher.Constraint("Tangent", 4, 1, 5, 1))
sketch9.addConstraint(Sketcher.Constraint("Tangent", 5, 2, 0, 1))
sketch9.addConstraint(Sketcher.Constraint("Tangent", 6, 2, 7, 2))
sketch9.addConstraint(Sketcher.Constraint("Tangent", 7, 1, 8, 1))
sketch9.addConstraint(Sketcher.Constraint("Tangent", 8, 2, 9, 1))
sketch9.addConstraint(Sketcher.Constraint("Tangent", 9, 2, 10, 1))
sketch9.addConstraint(Sketcher.Constraint("Tangent", 10, 2, 11, 2))
sketch9.addConstraint(Sketcher.Constraint("Tangent", 11, 1, 6, 1))
sketch9.addConstraint(Sketcher.Constraint("Tangent", 12, 2, 13, 2))
sketch9.addConstraint(Sketcher.Constraint("Tangent", 13, 1, 14, 1))
sketch9.addConstraint(Sketcher.Constraint("Tangent", 14, 2, 15, 2))
sketch9.addConstraint(Sketcher.Constraint("Tangent", 15, 1, 12, 1))
sketch9.addConstraint(Sketcher.Constraint("Tangent", 16, 2, 17, 2))
sketch9.addConstraint(Sketcher.Constraint("Tangent", 17, 1, 18, 1))
sketch9.addConstraint(Sketcher.Constraint("Tangent", 18, 2, 19, 2))
sketch9.addConstraint(Sketcher.Constraint("Tangent", 19, 1, 16, 1))
sketch9.addConstraint(Sketcher.Constraint("Tangent", 20, 2, 21, 1))
sketch9.addConstraint(Sketcher.Constraint("Tangent", 21, 2, 22, 2))
sketch9.addConstraint(Sketcher.Constraint("Tangent", 22, 1, 23, 2))
sketch9.addConstraint(Sketcher.Constraint("Tangent", 23, 1, 24, 2))
sketch9.addConstraint(Sketcher.Constraint("Tangent", 24, 1, 25, 1))
sketch9.addConstraint(Sketcher.Constraint("Tangent", 25, 2, 20, 1))
sketch9.addConstraint(Sketcher.Constraint("Vertical", 0))
sketch9.addConstraint(Sketcher.Constraint("Vertical", 3))
sketch9.addConstraint(Sketcher.Constraint("Vertical", 6))
sketch9.addConstraint(Sketcher.Constraint("Vertical", 9))
sketch9.addConstraint(Sketcher.Constraint("Vertical", 20))
sketch9.addConstraint(Sketcher.Constraint("Equal", 2, 4))
sketch9.addConstraint(Sketcher.Constraint("Equal", 1, 5))
sketch9.addConstraint(Sketcher.Constraint("Equal", 4, 7))
sketch9.addConstraint(Sketcher.Constraint("Equal", 5, 8))
sketch9.addConstraint(Sketcher.Constraint("Equal", 8, 10))
sketch9.addConstraint(Sketcher.Constraint("Equal", 7, 11))
sketch9.addConstraint(Sketcher.Constraint("Equal", 11, 13))
sketch9.addConstraint(Sketcher.Constraint("Equal", 10, 14))
sketch9.addConstraint(Sketcher.Constraint("Equal", 13, 15))
sketch9.addConstraint(Sketcher.Constraint("Equal", 15, 17))
sketch9.addConstraint(Sketcher.Constraint("Equal", 14, 18))
sketch9.addConstraint(Sketcher.Constraint("Equal", 17, 19))
sketch9.addConstraint(Sketcher.Constraint("Equal", 22, 24))
sketch9.addConstraint(Sketcher.Constraint("Equal", 21, 25))
sketch9.addConstraint(Sketcher.Constraint("Symmetric", 2, 3, 7, 3, -1))
sketch9.addConstraint(Sketcher.Constraint("Symmetric", 5, 3, 10, 3, -1))
sketch9.addConstraint(Sketcher.Constraint("Symmetric", 15, 3, 17, 3, -1))
sketch9.addConstraint(Sketcher.Constraint("Symmetric", 13, 3, 19, 3, -1))
sketch9.addConstraint(Sketcher.Constraint("Symmetric", 22, 3, 24, 3, -1))
sketch9.addConstraint(Sketcher.Constraint("Horizontal", 2, 3, 21, 3))
sketch9.addConstraint(Sketcher.Constraint("Radius", 21, Q("0.2 in")))
sketch9.addConstraint(Sketcher.Constraint("Radius", 1, Q("0.25 in")))
sketch9.addConstraint(Sketcher.Constraint("DistanceY", 0, 1, 0, 2, Q("0.5 in")))
sketch9.addConstraint(Sketcher.Constraint("DistanceX", -1, 1, 1, 3, Q("3 in")))
sketch9.addConstraint(Sketcher.Constraint("DistanceY", 14, 3, -1, 1, Q("2 in")))
sketch9.addConstraint(Sketcher.Constraint("Radius", 2, Q("0.390625 in")))
sketch9.addConstraint(Sketcher.Constraint("Radius", 23, Q("2.625 in")))
sketch9.addConstraint(Sketcher.Constraint("DistanceY", 4, 3, 7, 3, Q("2 in")))
sketch9.addConstraint(Sketcher.Constraint("DistanceY", 3, 2, 3, 1, Q("1.75 in")))
sketch9.addConstraint(Sketcher.Constraint("DistanceY", 22, 1, 21, 3, Q("0.5 in")))
sketch9.addConstraint(Sketcher.Constraint("Distance", 12, Q("1.25 in")))
sketch9.addConstraint(Sketcher.Constraint("DistanceX", 21, 3, -1, 1, Q("2.625 in")))
sketch9.addConstraint(Sketcher.Constraint("DistanceX", -1, 1, 23, 3, Q("0.375 in")))
sketch9.addConstraint(Sketcher.Constraint("DistanceX", 15, 3, -1, 1, Q("41.8244 mm")))
sketch9.addConstraint(Sketcher.Constraint("DistanceX", 13, 1, -1, 1, Q("50.288599 mm")))
pad5 = body.newObject("PartDesign::Pad", "Pad004")
pad5.Profile = sketch9
pad5.Length = Q("0.25 in")
pad5.Reversed = True
doc.recompute()

fillet3 = body.newObject("PartDesign::Fillet", "Fillet002")
fillet3.Base = (pad5, edges_at(pad5, [(-7.62, -3.404, 30.48)]))
fillet3.Radius = Q("0.36 in")
doc.recompute()

chamfer = body.newObject("PartDesign::Chamfer", "Chamfer")
chamfer.Base = (fillet3, edges_at(fillet3, [
    (54.49, -8.712, 60.84),
    (22.225, -8.712, 64.999),
    (-45.949, -8.712, 0),
    (-31.055, -8.712, -41.793),
    (-17.465, -8.712, -62.975),
    (17.145, -8.712, -64.999),
    (54.49, -8.712, -60.84),
    (58.649, -8.712, -34.215),
    (-17.495, -8.712, 58.42),
    (-27.304, -8.712, 48.828),
    (-20.746, -8.712, 33.02),
    (-10.16, -8.712, 45.72),
    (-21.623, -8.712, 57.479),
    (-12.094, -8.712, 34.954),
    (-30.391, -8.712, 36.226),
    (-12.094, -8.712, 56.486),
    (43.18, -8.712, 0),
    (58.649, -8.712, 34.215),
    (-24.641, -8.712, 30.48),
    (-39.331, -8.712, 26.276),
    (56.756, -8.712, -12.603),
    (56.756, -8.712, 12.603),
    (-5.388, -8.712, 62.767),
    (-36.438, -8.712, 29.394),
    (-7.62, -8.712, 48.501),
    (-10.298, -8.712, 33.158),
]))
chamfer.Size = Q("0.04 in")
doc.recompute()

fillet4 = body.newObject("PartDesign::Fillet", "Fillet003")
fillet4.Base = (chamfer, edges_at(chamfer, [
    (17.145, -2.54, 69.571),
    (-19.817, -2.54, 66.896),
    (-35.089, -2.54, 43.945),
    (-50.521, -2.54, 0),
    (-35.089, -2.54, -43.945),
    (-19.817, -2.54, -66.896),
    (17.145, -2.54, -69.571),
    (57.723, -2.54, -64.073),
    (63.221, -2.54, 0),
    (57.723, -2.54, 64.073),
    (-19.817, -6.096, 66.896),
    (-35.089, -6.096, 43.945),
    (-50.521, -6.096, 0),
    (-35.089, -6.096, -43.945),
    (-19.817, -6.096, -66.896),
    (17.145, -6.096, -69.571),
    (57.723, -6.096, -64.073),
    (63.221, -6.096, 0),
    (57.723, -6.096, 64.073),
    (17.145, -6.096, 69.571),
]))
fillet4.Radius = Q("0.01 in")

# Sketch on XZ plane
sketch10 = body.newObject("Sketcher::SketchObject", "Sketch009")
sketch10.AttachmentSupport = (doc.getObject("XZ_Plane"), [""])
sketch10.MapMode = "FlatFace"
sketch10.AttachmentOffset = App.Placement(V(0, 0, -0.25 * 25.4), App.Rotation())
sketch10.addGeometry(Part.Circle(V(-46.143333, 50.8, 0), V(0, 0, 1), 2.2479), False)
sketch10.addGeometry(Part.Circle(V(-46.143333, -50.8, 0), V(0, 0, 1), 2.2479), False)
sketch10.addGeometry(Part.Circle(V(76.2, -31.75, 0), V(0, 0, 1), 2.2479), False)
sketch10.addGeometry(Part.Circle(V(76.2, 31.75, 0), V(0, 0, 1), 2.2479), False)
sketch10.addConstraint(Sketcher.Constraint("Equal", 0, 1))
sketch10.addConstraint(Sketcher.Constraint("Equal", 1, 2))
sketch10.addConstraint(Sketcher.Constraint("Equal", 2, 3))
sketch10.addConstraint(Sketcher.Constraint("Symmetric", 0, 3, 1, 3, -1))
sketch10.addConstraint(Sketcher.Constraint("Symmetric", 2, 3, 3, 3, -1))
sketch10.addConstraint(Sketcher.Constraint("Diameter", 0, Q("0.177 in")))
sketch10.addConstraint(Sketcher.Constraint("DistanceY", -1, 1, 0, 3, Q("2 in")))
sketch10.addConstraint(Sketcher.Constraint("DistanceX", -1, 1, 2, 3, Q("3 in")))
sketch10.addConstraint(Sketcher.Constraint("DistanceY", 2, 3, 3, 3, Q("2.5 in")))
sketch10.addConstraint(Sketcher.Constraint("DistanceX", 0, 3, -1, 1, Q("46.143333 mm")))
doc.recompute()
hole3 = body.newObject("PartDesign::Hole", "Hole002")
hole3.Profile = sketch10
hole3.ThreadType = "None"
hole3.Diameter = Q("0.177 in")
hole3.DepthType = "ThroughAll"
hole3.Reversed = True

doc.recompute()
